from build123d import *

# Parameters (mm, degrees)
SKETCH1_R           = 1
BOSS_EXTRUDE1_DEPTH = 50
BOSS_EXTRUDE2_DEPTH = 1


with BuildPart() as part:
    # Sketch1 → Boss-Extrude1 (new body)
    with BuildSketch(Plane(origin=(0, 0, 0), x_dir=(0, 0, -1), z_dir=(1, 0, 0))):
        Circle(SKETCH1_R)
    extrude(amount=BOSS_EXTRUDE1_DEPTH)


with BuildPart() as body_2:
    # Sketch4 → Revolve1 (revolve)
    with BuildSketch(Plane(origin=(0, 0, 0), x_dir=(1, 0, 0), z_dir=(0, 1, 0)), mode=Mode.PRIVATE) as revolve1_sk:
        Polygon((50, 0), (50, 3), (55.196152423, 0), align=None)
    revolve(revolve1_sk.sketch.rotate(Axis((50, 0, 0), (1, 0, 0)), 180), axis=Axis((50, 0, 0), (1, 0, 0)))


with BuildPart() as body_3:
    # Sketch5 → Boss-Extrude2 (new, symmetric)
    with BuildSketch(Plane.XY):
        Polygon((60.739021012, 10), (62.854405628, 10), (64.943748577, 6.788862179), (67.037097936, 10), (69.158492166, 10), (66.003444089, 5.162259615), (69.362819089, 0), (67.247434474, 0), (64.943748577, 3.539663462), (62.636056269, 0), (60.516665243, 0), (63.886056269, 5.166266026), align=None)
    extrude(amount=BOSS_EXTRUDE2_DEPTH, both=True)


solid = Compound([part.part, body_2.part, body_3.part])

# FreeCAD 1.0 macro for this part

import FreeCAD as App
import Part
import Sketcher

V = App.Vector
Q = App.Units.Quantity


def add_polygon(sketch, points):
    """Adds a closed chain of lines whose ends are joined by coincident constraints."""
    first, n = sketch.GeometryCount, len(points)
    for a, b in zip(points, points[1:] + points[:1]):
        sketch.addGeometry(Part.LineSegment(App.Vector(*a, 0), App.Vector(*b, 0)), False)
    for i in range(n):
        sketch.addConstraint(Sketcher.Constraint("Coincident", first + i, 2, first + (i + 1) % n, 1))

doc = App.newDocument("Part")
body = doc.addObject("PartDesign::Body", "Body")

# Sketch on YZ plane
sketch1 = body.newObject("Sketcher::SketchObject", "Sketch")
sketch1.AttachmentSupport = (doc.getObject("YZ_Plane"), [""])
sketch1.MapMode = "FlatFace"
sketch1.addGeometry(Part.Circle(V(0, 0, 0), V(0, 0, 1), 1), False)
sketch1.addConstraint(Sketcher.Constraint("Coincident", 0, 3, -1, 1))
sketch1.addConstraint(Sketcher.Constraint("Diameter", 0, 2.0))
pad1 = body.newObject("PartDesign::Pad", "Pad")
pad1.Profile = sketch1
pad1.Length = 50
body2 = doc.addObject("PartDesign::Body", "Body001")

# Sketch on XZ plane
sketch2 = body2.newObject("Sketcher::SketchObject", "Sketch001")
sketch2.AttachmentSupport = (doc.getObject("XZ_Plane001"), [""])
sketch2.MapMode = "FlatFace"
add_polygon(sketch2, [(50, -3), (50, 0), (55.2, 0)])  # lines 0-2
sketch2.addConstraint(Sketcher.Constraint("Vertical", 0))
sketch2.addConstraint(Sketcher.Constraint("Horizontal", 1))
sketch2.addConstraint(Sketcher.Constraint("PointOnObject", 0, 2, -1))
sketch2.addConstraint(Sketcher.Constraint("DistanceY", 0, 1, 0, 2, 3.0))
sketch2.addConstraint(Sketcher.Constraint("Angle", 2, Q("-150 deg")))
sketch2.addConstraint(Sketcher.Constraint("DistanceX", -1, 1, 0, 2, 50.0))
revolution = body2.newObject("PartDesign::Revolution", "Revolution")
revolution.Profile = sketch2
revolution.ReferenceAxis = (sketch2, ["H_Axis"])
revolution.Angle = 360
body3 = doc.addObject("PartDesign::Body", "Body002")

# Sketch on XY plane
sketch3 = body3.newObject("Sketcher::SketchObject", "Sketch002")
sketch3.AttachmentSupport = (doc.getObject("XY_Plane002"), [""])
sketch3.MapMode = "FlatFace"
add_polygon(sketch3, [(62.9, 10), (60.7, 10), (63.9, 5.2), (60.5, 0), (62.6, 0), (64.9, 3.5), (67.2, 0), (69.4, 0), (66, 5.2), (69.2, 10), (67, 10), (64.9, 6.8)])  # lines 0-11
sketch3.addConstraint(Sketcher.Constraint("Horizontal", 0))
sketch3.addConstraint(Sketcher.Constraint("Horizontal", 3))
sketch3.addConstraint(Sketcher.Constraint("Horizontal", 6))
sketch3.addConstraint(Sketcher.Constraint("Horizontal", 9))
sketch3.addConstraint(Sketcher.Constraint("PointOnObject", 2, 2, -1))
sketch3.addConstraint(Sketcher.Constraint("PointOnObject", 5, 2, -1))
sketch3.addConstraint(Sketcher.Constraint("Horizontal", 0, 2, 8, 2))
sketch3.addConstraint(Sketcher.Constraint("Vertical", 4, 2, 10, 2))
sketch3.addConstraint(Sketcher.Constraint("Equal", 0, 6))
sketch3.addConstraint(Sketcher.Constraint("DistanceY", -1, 1, 0, 2, 10.0))
sketch3.addConstraint(Sketcher.Constraint("DistanceX", 3, 2, 1, 2, 1.25))
sketch3.addConstraint(Sketcher.Constraint("DistanceX", 3, 1, 3, 2, 2.119391))
sketch3.addConstraint(Sketcher.Constraint("DistanceY", 4, 2, 10, 2, 3.249199))
sketch3.addConstraint(Sketcher.Constraint("Distance", 2, 6.167909))
sketch3.addConstraint(Sketcher.Constraint("Distance", 5, 4.223291))
sketch3.addConstraint(Sketcher.Constraint("DistanceX", 0, 2, 0, 1, 2.115385))
sketch3.addConstraint(Sketcher.Constraint("DistanceX", 9, 2, 9, 1, 2.121394))
sketch3.addConstraint(Sketcher.Constraint("DistanceX", -1, 1, 0, 2, 60.739021))
sketch3.addConstraint(Sketcher.Constraint("DistanceX", -1, 1, 4, 2, 64.943749))
sketch3.addConstraint(Sketcher.Constraint("DistanceX", -1, 1, 6, 2, 69.362819))
sketch3.addConstraint(Sketcher.Constraint("DistanceY", -1, 1, 7, 2, 5.16226))
sketch3.addConstraint(Sketcher.Constraint("DistanceX", 3, 2, 5, 2, 4.611378))
sketch3.addConstraint(Sketcher.Constraint("DistanceX", 7, 2, 5, 2, 1.24399))
sketch3.addConstraint(Sketcher.Constraint("DistanceX", 7, 2, 8, 2, 3.155048))
pad2 = body3.newObject("PartDesign::Pad", "Pad001")
pad2.Profile = sketch3
pad2.Length = 2
pad2.Midplane = True

doc.recompute()
